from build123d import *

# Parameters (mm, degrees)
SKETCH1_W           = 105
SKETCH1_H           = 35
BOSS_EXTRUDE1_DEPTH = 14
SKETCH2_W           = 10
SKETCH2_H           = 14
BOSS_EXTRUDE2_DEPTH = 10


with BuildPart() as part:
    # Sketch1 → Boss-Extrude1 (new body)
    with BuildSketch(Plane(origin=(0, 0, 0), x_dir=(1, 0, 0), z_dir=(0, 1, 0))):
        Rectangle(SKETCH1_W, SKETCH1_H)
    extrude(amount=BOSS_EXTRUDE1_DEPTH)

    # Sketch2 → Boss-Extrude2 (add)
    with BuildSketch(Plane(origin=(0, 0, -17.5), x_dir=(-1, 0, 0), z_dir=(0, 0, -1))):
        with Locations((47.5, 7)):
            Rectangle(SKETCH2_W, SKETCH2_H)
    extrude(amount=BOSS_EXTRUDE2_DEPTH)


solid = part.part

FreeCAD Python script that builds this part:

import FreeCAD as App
import Part
import Sketcher
from FreeCAD import Vector


def add_polygon(sketch, points):
    """Adds a closed chain of lines whose ends are joined by coincident constraints."""
    first, n = sketch.GeometryCount, len(points)
    for a, b in zip(points, points[1:] + points[:1]):
        sketch.addGeometry(Part.LineSegment(App.Vector(*a, 0), App.Vector(*b, 0)), False)
    for i in range(n):
        sketch.addConstraint(Sketcher.Constraint("Coincident", first + i, 2, first + (i + 1) % n, 1))

doc = App.newDocument("Part")
params = doc.addObject("Spreadsheet::Sheet", "Params")
for row, (alias, value) in enumerate([
    ("sketch1_width", "105 mm"),
    ("sketch1_height", "35 mm"),
    ("pad1_length", "14 mm"),
    ("sketch2_width", "10 mm"),
    ("sketch2_height", "14 mm"),
    ("pad2_length", "10 mm"),
], start=1):
    params.set(f"A{row}", alias)
    params.set(f"B{row}", "=" + value)
    params.setAlias(f"B{row}", alias)

body = doc.addObject("PartDesign::Body", "Body")

# Sketch on XZ plane
sketch1 = body.newObject("Sketcher::SketchObject", "Sketch")
sketch1.AttachmentSupport = (doc.getObject("XZ_Plane"), [""])
sketch1.MapMode = "FlatFace"
add_polygon(sketch1, [(-52, -18), (-52, 18), (52, 18), (52, -18)])  # lines 0-3
sketch1.addConstraint([
    Sketcher.Constraint("Vertical", 0),
    Sketcher.Constraint("Horizontal", 1),
    Sketcher.Constraint("Vertical", 2),
    Sketcher.Constraint("Horizontal", 3),
    Sketcher.Constraint("Symmetric", 0, 2, 2, 2, -1, 1),
    Sketcher.Constraint("DistanceX", 1, 1, 1, 2, 105.0),
    Sketcher.Constraint("DistanceY", 0, 1, 0, 2, 35.0),
])
sketch1.setExpression("Constraints[9]", "Params.sketch1_width")
sketch1.setExpression("Constraints[10]", "Params.sketch1_height")
pad1 = body.newObject("PartDesign::Pad", "Pad")
pad1.Profile = sketch1
pad1.setExpression("Length", "Params.pad1_length")
pad1.Reversed = True

# Sketch on XY plane
sketch2 = body.newObject("Sketcher::SketchObject", "Sketch001")
sketch2.AttachmentSupport = (doc.getObject("XY_Plane"), [""])
sketch2.MapMode = "FlatFace"
sketch2.AttachmentOffset = App.Placement(Vector(0, 0, -17.5), App.Rotation())
add_polygon(sketch2, [(-42, 14), (-42, 0), (-52, 0), (-52, 14)])  # lines 0-3
sketch2.addConstraint([
    Sketcher.Constraint("Vertical", 0),
    Sketcher.Constraint("Horizontal", 1),
    Sketcher.Constraint("Vertical", 2),
    Sketcher.Constraint("Horizontal", 3),
    Sketcher.Constraint("PointOnObject", 0, 2, -1),
    Sketcher.Constraint("DistanceX", 1, 2, 1, 1, 10.0),
    Sketcher.Constraint("DistanceY", 0, 2, 0, 1, 14.0),
    Sketcher.Constraint("DistanceX", 0, 2, -1, 1, 42.5),
])
sketch2.setExpression("Constraints[9]", "Params.sketch2_width")
sketch2.setExpression("Constraints[10]", "Params.sketch2_height")
pad2 = body.newObject("PartDesign::Pad", "Pad001")
pad2.Profile = sketch2
pad2.setExpression("Length", "Params.pad2_length")
pad2.Reversed = True

doc.recompute()
